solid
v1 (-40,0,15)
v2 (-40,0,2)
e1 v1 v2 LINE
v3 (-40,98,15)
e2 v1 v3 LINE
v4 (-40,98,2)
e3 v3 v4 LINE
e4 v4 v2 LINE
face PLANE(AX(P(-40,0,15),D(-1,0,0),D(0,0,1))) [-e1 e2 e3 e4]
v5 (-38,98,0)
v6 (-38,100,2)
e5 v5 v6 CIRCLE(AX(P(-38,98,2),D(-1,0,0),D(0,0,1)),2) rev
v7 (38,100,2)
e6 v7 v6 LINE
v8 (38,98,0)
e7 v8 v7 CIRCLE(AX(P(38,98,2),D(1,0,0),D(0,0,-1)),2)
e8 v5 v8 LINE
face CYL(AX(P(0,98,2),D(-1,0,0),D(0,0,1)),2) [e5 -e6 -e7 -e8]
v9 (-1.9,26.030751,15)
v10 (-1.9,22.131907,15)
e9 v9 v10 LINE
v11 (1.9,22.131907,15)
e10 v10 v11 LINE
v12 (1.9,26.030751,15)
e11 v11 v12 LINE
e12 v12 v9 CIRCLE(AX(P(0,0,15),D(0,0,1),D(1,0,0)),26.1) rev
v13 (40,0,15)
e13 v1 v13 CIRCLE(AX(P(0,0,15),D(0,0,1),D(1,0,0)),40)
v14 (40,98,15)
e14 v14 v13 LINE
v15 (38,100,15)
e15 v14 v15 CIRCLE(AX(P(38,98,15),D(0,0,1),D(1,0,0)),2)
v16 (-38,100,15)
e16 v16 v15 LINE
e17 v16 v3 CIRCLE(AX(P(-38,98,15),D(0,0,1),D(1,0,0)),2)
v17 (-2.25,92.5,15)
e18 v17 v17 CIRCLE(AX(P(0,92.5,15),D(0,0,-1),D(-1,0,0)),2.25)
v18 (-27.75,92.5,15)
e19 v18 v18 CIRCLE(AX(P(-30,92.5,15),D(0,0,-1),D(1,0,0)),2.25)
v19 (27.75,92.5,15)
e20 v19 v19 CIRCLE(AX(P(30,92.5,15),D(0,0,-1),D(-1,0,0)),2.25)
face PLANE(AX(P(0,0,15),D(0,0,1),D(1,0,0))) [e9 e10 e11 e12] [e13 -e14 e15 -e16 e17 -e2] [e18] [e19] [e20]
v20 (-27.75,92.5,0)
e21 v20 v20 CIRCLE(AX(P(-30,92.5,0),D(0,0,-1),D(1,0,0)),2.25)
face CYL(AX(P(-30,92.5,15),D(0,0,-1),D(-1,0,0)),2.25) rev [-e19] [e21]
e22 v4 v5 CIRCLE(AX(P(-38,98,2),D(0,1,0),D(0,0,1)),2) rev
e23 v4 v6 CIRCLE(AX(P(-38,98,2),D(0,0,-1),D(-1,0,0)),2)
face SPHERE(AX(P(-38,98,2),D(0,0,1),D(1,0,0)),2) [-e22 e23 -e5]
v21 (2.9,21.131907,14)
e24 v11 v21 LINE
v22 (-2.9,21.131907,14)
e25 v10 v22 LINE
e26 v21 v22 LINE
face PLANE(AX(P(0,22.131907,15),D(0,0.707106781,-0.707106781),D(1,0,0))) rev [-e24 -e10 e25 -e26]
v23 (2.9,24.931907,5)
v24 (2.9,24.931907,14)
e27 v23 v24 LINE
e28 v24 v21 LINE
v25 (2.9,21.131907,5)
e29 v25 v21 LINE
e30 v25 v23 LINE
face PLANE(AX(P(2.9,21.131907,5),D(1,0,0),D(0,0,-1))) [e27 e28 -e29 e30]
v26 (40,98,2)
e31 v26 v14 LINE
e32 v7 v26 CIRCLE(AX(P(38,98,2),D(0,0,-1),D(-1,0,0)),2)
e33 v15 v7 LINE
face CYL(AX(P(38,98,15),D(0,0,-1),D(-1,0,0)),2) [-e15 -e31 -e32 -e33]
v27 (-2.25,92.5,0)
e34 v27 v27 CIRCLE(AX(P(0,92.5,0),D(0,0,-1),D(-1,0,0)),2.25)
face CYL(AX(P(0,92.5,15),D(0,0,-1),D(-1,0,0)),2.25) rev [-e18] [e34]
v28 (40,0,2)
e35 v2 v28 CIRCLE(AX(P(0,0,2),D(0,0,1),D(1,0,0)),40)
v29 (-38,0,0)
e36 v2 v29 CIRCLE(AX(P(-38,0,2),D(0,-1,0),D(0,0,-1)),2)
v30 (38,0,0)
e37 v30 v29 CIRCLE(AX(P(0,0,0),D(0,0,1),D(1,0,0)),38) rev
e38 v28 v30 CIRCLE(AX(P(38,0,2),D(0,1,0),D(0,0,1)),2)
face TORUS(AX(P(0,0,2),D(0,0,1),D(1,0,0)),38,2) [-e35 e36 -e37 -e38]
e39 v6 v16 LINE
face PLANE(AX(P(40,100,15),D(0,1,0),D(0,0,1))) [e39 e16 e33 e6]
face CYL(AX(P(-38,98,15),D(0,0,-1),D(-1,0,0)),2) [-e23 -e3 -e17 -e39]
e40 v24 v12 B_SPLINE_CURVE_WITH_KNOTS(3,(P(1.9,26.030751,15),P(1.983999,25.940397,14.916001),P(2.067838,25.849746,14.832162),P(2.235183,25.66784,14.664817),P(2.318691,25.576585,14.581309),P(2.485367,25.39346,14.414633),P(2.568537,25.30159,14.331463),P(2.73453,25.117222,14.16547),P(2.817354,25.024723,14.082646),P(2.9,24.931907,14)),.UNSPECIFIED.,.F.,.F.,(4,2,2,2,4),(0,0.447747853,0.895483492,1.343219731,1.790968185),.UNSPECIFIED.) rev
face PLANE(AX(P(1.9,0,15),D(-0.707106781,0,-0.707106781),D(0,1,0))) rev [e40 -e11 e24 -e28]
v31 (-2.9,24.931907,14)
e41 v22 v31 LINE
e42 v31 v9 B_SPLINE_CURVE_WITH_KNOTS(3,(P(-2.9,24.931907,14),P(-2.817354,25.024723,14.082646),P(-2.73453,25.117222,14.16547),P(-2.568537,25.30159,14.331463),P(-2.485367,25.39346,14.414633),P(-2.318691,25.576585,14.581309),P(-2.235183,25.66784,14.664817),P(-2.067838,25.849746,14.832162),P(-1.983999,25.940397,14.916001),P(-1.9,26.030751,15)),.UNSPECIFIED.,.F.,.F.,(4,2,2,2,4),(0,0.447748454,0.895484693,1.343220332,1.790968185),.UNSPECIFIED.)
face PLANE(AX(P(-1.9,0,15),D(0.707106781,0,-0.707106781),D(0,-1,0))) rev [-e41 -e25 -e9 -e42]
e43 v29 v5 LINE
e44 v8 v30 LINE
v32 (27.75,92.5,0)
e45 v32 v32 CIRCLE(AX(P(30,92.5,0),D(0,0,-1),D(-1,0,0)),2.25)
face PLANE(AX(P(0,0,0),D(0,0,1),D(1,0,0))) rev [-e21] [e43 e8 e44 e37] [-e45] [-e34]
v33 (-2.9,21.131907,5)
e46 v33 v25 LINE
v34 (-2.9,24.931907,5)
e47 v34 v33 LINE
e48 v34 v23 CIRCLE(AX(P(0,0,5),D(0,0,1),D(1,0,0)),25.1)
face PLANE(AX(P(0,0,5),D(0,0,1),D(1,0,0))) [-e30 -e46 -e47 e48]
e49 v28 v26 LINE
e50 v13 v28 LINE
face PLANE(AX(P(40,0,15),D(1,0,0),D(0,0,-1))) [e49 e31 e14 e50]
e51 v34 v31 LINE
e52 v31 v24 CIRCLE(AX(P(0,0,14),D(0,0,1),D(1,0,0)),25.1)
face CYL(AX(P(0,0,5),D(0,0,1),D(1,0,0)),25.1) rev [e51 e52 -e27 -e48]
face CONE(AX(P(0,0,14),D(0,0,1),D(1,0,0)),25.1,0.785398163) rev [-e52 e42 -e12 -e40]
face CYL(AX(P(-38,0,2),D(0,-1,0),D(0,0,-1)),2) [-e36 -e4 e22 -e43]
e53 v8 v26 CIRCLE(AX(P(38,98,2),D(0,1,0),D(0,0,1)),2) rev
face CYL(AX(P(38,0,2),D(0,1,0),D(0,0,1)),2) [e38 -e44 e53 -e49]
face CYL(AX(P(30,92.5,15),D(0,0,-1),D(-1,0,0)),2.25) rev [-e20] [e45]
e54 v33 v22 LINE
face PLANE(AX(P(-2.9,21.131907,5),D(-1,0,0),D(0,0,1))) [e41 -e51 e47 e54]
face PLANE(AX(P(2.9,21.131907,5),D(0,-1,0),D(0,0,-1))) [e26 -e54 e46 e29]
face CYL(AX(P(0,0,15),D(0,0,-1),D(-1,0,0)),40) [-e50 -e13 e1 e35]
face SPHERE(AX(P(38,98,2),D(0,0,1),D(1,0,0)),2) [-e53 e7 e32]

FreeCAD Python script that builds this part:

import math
import FreeCAD as App
import Part
import Sketcher
from FreeCAD import Vector
Q = App.Units.Quantity


def edges_at(feature, points):
    """Names of the edges that pass closest to the given points."""
    edges = feature.Shape.Edges
    near = lambda p: min(range(len(edges)), key=lambda i: edges[i].distToShape(Part.Vertex(*p))[0])
    return sorted({f"Edge{near(p) + 1}" for p in points})

doc = App.newDocument("Part")
params = doc.addObject("Spreadsheet::Sheet", "Params")
for row, (alias, value) in enumerate([
    ("sketch1_diameter", "80 mm"),
    ("pad1_length", "15 mm"),
    ("sketch2_diameter", "50.2 mm"),
    ("pocket1_length", "10 mm"),
    ("sketch3_radius", "25.1 mm"),
    ("sketch3_width", "5.8 mm"),
    ("sketch3_height", "3.8 mm"),
    ("pad2_length", "10 mm"),
    ("chamfer_size", "1 mm"),
    ("sketch4_radius", "40 mm"),
    ("sketch4_height", "100 mm"),
    ("pad3_length", "15 mm"),
    ("sketch5_diameter", "4.5 mm"),
    ("fillet_radius", "2 mm"),
], start=1):
    params.set(f"A{row}", alias)
    params.set(f"B{row}", "=" + value)
    params.setAlias(f"B{row}", alias)

body = doc.addObject("PartDesign::Body", "Body")

sketch1 = body.newObject("Sketcher::SketchObject", "Sketch")
sketch1.AttachmentSupport = (doc.getObject("XY_Plane"), [""])
sketch1.MapMode = "FlatFace"
sketch1.addGeometry(Part.Circle(Vector(0, 0, 0), Vector(0, 0, 1), 40), False)
sketch1.addConstraint([
    Sketcher.Constraint("Coincident", 0, 3, -1, 1),
    Sketcher.Constraint("Diameter", 0, Q("80 mm")),
])
sketch1.setExpression("Constraints[1]", "Params.sketch1_diameter")
pad1 = body.newObject("PartDesign::Pad", "Pad")
pad1.Profile = sketch1
pad1.setExpression("Length", "Params.pad1_length")

sketch2 = body.newObject("Sketcher::SketchObject", "Sketch001")
sketch2.AttachmentSupport = (doc.getObject("XY_Plane"), [""])
sketch2.MapMode = "FlatFace"
sketch2.AttachmentOffset = App.Placement(Vector(0, 0, 15), App.Rotation())
sketch2.addGeometry(Part.Circle(Vector(0, 0, 0), Vector(0, 0, 1), 25), False)
sketch2.addConstraint([
    Sketcher.Constraint("Coincident", 0, 3, -1, 1),
    Sketcher.Constraint("Diameter", 0, Q("50.2 mm")),
])
sketch2.setExpression("Constraints[1]", "Params.sketch2_diameter")
pocket1 = body.newObject("PartDesign::Pocket", "Pocket")
pocket1.Profile = sketch2
pocket1.setExpression("Length", "Params.pocket1_length")

sketch3 = body.newObject("Sketcher::SketchObject", "Sketch002")
sketch3.AttachmentSupport = (doc.getObject("XY_Plane"), [""])
sketch3.MapMode = "FlatFace"
sketch3.AttachmentOffset = App.Placement(Vector(0, 0, 15), App.Rotation())
sketch3.addGeometry([
    Part.LineSegment(Vector(-2.9, 21.1, 0), Vector(2.9, 21.1, 0)),
    Part.LineSegment(Vector(2.9, 21.1, 0), Vector(2.9, 24.9, 0)),
    Part.ArcOfCircle(Part.Circle(Vector(0, 0, 0), Vector(0, 0, 1), 25.1), math.radians(83.37), math.radians(96.63)),
    Part.LineSegment(Vector(-2.9, 24.9, 0), Vector(-2.9, 21.1, 0)),
], False)
sketch3.addConstraint([
    Sketcher.Constraint("Coincident", 0, 2, 1, 1),
    Sketcher.Constraint("Coincident", 1, 2, 2, 1),
    Sketcher.Constraint("Coincident", 2, 2, 3, 1),
    Sketcher.Constraint("Coincident", 3, 2, 0, 1),
    Sketcher.Constraint("Horizontal", 0),
    Sketcher.Constraint("Vertical", 1),
    Sketcher.Constraint("Vertical", 3),
    Sketcher.Constraint("Coincident", 2, 3, -1, 1),
    Sketcher.Constraint("Horizontal", 1, 2, 2, 2),
    Sketcher.Constraint("Radius", 2, Q("25.1 mm")),
    Sketcher.Constraint("DistanceX", 0, 1, 0, 2, Q("5.8 mm")),
    Sketcher.Constraint("DistanceY", 1, 1, 1, 2, Q("3.8 mm")),
])
sketch3.setExpression("Constraints[9]", "Params.sketch3_radius")
sketch3.setExpression("Constraints[10]", "Params.sketch3_width")
sketch3.setExpression("Constraints[11]", "Params.sketch3_height")
pad2 = body.newObject("PartDesign::Pad", "Pad001")
pad2.Profile = sketch3
pad2.setExpression("Length", "Params.pad2_length")
pad2.Reversed = True
doc.recompute()

chamfer = body.newObject("PartDesign::Chamfer", "Chamfer")
chamfer.Base = (pad2, edges_at(pad2, [
    (0, -25.1, 15),
    (-2.9, 23.032, 15),
    (0, 21.132, 15),
    (2.9, 23.032, 15),
]))
chamfer.setExpression("Size", "Params.chamfer_size")

sketch4 = body.newObject("Sketcher::SketchObject", "Sketch003")
sketch4.AttachmentSupport = (doc.getObject("XY_Plane"), [""])
sketch4.MapMode = "FlatFace"
sketch4.addGeometry([
    Part.LineSegment(Vector(40, 100, 0), Vector(40, 0, 0)),
    Part.ArcOfCircle(Part.Circle(Vector(0, 0, 0), Vector(0, 0, 1), 40), math.radians(0), math.radians(180)),
    Part.LineSegment(Vector(-40, 0, 0), Vector(-40, 100, 0)),
    Part.LineSegment(Vector(-40, 100, 0), Vector(40, 100, 0)),
], False)
sketch4.addConstraint([
    Sketcher.Constraint("Tangent", 0, 2, 1, 1),
    Sketcher.Constraint("Tangent", 1, 2, 2, 1),
    Sketcher.Constraint("Coincident", 2, 2, 3, 1),
    Sketcher.Constraint("Coincident", 3, 2, 0, 1),
    Sketcher.Constraint("Vertical", 0),
    Sketcher.Constraint("Vertical", 2),
    Sketcher.Constraint("Horizontal", 3),
    Sketcher.Constraint("Coincident", 1, 3, -1, 1),
    Sketcher.Constraint("Radius", 1, Q("40 mm")),
    Sketcher.Constraint("DistanceY", 0, 2, 0, 1, Q("100 mm")),
])
sketch4.setExpression("Constraints[8]", "Params.sketch4_radius")
sketch4.setExpression("Constraints[9]", "Params.sketch4_height")
pad3 = body.newObject("PartDesign::Pad", "Pad002")
pad3.Profile = sketch4
pad3.setExpression("Length", "Params.pad3_length")

sketch5 = body.newObject("Sketcher::SketchObject", "Sketch004")
sketch5.AttachmentSupport = (doc.getObject("XY_Plane"), [""])
sketch5.MapMode = "FlatFace"
sketch5.addGeometry([
    Part.Circle(Vector(0, 92.5, 0), Vector(0, 0, 1), 2.2),
    Part.Circle(Vector(30, 92.5, 0), Vector(0, 0, 1), 2.2),
    Part.Circle(Vector(-30, 92.5, 0), Vector(0, 0, 1), 2.2),
], False)
sketch5.addConstraint([
    Sketcher.Constraint("Equal", 0, 1),
    Sketcher.Constraint("Equal", 1, 2),
    Sketcher.Constraint("Symmetric", 1, 3, 2, 3, -2),
    Sketcher.Constraint("PointOnObject", 0, 3, -2),
    Sketcher.Constraint("Horizontal", 0, 3, 1, 3),
    Sketcher.Constraint("Diameter", 0, Q("4.5 mm")),
    Sketcher.Constraint("DistanceX", -1, 1, 1, 3, Q("30 mm")),
    Sketcher.Constraint("DistanceY", -1, 1, 0, 3, Q("92.5 mm")),
])
sketch5.setExpression("Constraints[5]", "Params.sketch5_diameter")
pocket2 = body.newObject("PartDesign::Pocket", "Pocket001")
pocket2.Profile = sketch5
pocket2.Type = "ThroughAll"
pocket2.Reversed = True
doc.recompute()

fillet = body.newObject("PartDesign::Fillet", "Fillet")
fillet.Base = (pocket2, edges_at(pocket2, [
    (0, -40, 0),
    (40, 100, 7.5),
    (-40, 100, 7.5),
    (-40, 50, 0),
    (0, 100, 0),
    (40, 50, 0),
]))
fillet.setExpression("Radius", "Params.fillet_radius")

doc.recompute()
